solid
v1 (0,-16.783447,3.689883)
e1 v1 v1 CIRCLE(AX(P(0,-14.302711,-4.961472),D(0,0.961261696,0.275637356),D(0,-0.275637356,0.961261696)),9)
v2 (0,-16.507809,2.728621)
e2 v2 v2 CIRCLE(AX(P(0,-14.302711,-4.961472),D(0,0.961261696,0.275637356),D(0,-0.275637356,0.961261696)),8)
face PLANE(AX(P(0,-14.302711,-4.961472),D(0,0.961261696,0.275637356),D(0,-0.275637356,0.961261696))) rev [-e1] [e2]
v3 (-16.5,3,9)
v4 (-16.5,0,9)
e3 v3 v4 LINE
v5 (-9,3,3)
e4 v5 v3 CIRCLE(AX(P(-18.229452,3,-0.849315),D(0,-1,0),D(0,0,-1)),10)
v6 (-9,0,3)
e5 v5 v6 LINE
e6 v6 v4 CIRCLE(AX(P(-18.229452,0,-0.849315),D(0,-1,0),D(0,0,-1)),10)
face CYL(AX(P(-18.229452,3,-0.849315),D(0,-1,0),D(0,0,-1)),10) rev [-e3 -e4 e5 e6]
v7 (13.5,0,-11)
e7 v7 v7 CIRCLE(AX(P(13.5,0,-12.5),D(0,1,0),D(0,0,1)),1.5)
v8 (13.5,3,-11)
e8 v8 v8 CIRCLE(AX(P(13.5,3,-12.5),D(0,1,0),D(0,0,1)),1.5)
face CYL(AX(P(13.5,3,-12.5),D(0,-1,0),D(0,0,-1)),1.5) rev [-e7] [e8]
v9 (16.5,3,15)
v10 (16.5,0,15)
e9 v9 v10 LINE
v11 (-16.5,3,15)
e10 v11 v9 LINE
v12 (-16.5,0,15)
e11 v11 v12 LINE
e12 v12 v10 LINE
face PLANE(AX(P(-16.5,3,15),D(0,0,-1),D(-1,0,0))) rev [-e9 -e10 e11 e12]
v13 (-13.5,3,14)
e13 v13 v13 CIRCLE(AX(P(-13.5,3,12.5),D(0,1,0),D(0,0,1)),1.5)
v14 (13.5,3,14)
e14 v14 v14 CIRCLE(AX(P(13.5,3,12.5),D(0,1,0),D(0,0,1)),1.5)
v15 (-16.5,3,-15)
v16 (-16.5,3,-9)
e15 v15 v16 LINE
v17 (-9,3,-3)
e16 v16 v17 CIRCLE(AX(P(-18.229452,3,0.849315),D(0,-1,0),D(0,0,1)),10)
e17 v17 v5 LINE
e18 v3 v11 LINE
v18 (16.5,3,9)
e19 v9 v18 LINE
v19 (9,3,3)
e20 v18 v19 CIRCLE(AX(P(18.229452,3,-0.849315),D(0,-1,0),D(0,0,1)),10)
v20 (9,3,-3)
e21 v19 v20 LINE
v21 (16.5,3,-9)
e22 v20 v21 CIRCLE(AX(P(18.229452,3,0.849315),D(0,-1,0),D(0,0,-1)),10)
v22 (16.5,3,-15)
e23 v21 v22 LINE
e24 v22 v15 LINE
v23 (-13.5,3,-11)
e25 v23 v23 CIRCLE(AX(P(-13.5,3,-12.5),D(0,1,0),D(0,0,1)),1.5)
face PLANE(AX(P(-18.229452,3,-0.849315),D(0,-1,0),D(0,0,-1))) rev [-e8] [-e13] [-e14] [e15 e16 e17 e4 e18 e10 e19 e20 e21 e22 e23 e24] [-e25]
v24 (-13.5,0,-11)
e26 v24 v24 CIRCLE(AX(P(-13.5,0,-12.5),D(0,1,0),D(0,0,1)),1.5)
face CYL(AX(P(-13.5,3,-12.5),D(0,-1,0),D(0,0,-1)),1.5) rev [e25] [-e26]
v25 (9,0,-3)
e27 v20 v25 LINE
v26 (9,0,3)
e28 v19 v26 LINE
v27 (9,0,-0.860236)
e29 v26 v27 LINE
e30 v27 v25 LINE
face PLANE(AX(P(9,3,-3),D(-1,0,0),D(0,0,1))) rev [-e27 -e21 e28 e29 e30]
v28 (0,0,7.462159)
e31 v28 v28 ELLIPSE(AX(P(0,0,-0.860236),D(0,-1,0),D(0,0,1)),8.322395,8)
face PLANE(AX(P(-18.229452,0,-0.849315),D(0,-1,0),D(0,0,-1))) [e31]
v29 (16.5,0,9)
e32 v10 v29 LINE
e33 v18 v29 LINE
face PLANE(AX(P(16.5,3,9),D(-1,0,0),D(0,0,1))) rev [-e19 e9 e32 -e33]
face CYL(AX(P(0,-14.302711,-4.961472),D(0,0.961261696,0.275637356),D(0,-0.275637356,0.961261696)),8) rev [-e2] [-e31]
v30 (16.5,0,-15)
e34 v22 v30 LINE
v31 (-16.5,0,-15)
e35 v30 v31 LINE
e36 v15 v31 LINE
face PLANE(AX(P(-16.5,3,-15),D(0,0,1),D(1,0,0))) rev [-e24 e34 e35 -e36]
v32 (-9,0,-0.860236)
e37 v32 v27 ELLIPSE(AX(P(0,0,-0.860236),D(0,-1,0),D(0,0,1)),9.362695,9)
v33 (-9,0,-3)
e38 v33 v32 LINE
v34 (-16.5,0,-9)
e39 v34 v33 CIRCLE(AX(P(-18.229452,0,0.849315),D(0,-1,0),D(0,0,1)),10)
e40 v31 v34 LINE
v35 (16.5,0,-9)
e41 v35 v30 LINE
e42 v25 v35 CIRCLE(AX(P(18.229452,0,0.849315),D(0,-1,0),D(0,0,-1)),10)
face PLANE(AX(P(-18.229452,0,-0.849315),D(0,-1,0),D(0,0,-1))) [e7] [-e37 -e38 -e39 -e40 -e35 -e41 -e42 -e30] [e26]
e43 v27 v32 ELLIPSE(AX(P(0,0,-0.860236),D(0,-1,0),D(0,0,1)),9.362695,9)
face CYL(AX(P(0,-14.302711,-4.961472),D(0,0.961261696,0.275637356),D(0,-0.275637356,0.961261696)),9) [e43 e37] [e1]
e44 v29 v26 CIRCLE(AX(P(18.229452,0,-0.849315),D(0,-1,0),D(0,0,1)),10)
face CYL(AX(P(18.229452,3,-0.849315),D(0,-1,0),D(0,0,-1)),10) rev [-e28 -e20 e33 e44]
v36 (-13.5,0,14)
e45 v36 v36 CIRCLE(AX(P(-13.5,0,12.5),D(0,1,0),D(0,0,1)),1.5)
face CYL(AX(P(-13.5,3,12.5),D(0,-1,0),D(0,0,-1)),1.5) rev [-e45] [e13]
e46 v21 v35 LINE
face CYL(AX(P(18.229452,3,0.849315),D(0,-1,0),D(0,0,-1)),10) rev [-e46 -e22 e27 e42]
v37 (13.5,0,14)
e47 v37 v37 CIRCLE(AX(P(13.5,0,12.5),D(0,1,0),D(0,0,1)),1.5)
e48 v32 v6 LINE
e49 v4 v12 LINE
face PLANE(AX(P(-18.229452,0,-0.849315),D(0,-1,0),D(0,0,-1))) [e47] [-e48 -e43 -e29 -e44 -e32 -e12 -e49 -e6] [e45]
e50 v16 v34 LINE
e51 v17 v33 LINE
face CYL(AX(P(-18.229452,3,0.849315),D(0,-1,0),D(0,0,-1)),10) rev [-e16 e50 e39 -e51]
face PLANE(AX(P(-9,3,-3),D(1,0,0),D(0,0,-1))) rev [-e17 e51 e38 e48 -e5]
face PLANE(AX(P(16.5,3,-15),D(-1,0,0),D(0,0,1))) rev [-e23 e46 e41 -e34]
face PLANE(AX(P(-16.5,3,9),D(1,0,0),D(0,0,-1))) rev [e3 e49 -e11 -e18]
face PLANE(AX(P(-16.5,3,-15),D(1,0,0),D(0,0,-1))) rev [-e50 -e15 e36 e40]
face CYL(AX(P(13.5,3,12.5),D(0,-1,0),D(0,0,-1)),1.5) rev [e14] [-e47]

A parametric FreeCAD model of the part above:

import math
import FreeCAD as App
import Part
import Sketcher


def add_polygon(sketch, points):
    """Adds a closed chain of lines whose ends are joined by coincident constraints."""
    first, n = sketch.GeometryCount, len(points)
    for a, b in zip(points, points[1:] + points[:1]):
        sketch.addGeometry(Part.LineSegment(App.Vector(*a, 0), App.Vector(*b, 0)), False)
    for i in range(n):
        sketch.addConstraint(Sketcher.Constraint("Coincident", first + i, 2, first + (i + 1) % n, 1))

doc = App.newDocument("Part")
body = doc.addObject("PartDesign::Body", "Body")

sketch1 = body.newObject("Sketcher::SketchObject", "Sketch")
sketch1.AttachmentSupport = (doc.getObject("XZ_Plane"), [""])
sketch1.MapMode = "FlatFace"
sketch1.addGeometry(Part.LineSegment(App.Vector(16.5, -15, 0), App.Vector(-16.5, -15, 0)), False)
sketch1.addGeometry(Part.LineSegment(App.Vector(-16.5, -15, 0), App.Vector(-16.5, -9, 0)), False)
sketch1.addGeometry(Part.ArcOfCircle(Part.Circle(App.Vector(-18.2, 0.8, 0), App.Vector(0, 0, 1), 10), math.radians(-80), math.radians(-23)), False)
sketch1.addGeometry(Part.LineSegment(App.Vector(-9, -3, 0), App.Vector(-9, 3, 0)), False)
sketch1.addGeometry(Part.ArcOfCircle(Part.Circle(App.Vector(-18.2, -0.8, 0), App.Vector(0, 0, 1), 10), math.radians(23), math.radians(80)), False)
sketch1.addGeometry(Part.LineSegment(App.Vector(-16.5, 9, 0), App.Vector(-16.5, 15, 0)), False)
sketch1.addGeometry(Part.LineSegment(App.Vector(-16.5, 15, 0), App.Vector(16.5, 15, 0)), False)
sketch1.addGeometry(Part.LineSegment(App.Vector(16.5, 15, 0), App.Vector(16.5, 9, 0)), False)
sketch1.addGeometry(Part.ArcOfCircle(Part.Circle(App.Vector(18.2, -0.8, 0), App.Vector(0, 0, 1), 10), math.radians(100), math.radians(157)), False)
sketch1.addGeometry(Part.LineSegment(App.Vector(9, 3, 0), App.Vector(9, -3, 0)), False)
sketch1.addGeometry(Part.ArcOfCircle(Part.Circle(App.Vector(18.2, 0.8, 0), App.Vector(0, 0, 1), 10), math.radians(-157), math.radians(-100)), False)
sketch1.addGeometry(Part.LineSegment(App.Vector(16.5, -9, 0), App.Vector(16.5, -15, 0)), False)
sketch1.addGeometry(Part.Circle(App.Vector(13.5, 12.5, 0), App.Vector(0, 0, 1), 1.5), False)
sketch1.addGeometry(Part.Circle(App.Vector(-13.5, 12.5, 0), App.Vector(0, 0, 1), 1.5), False)
sketch1.addGeometry(Part.Circle(App.Vector(13.5, -12.5, 0), App.Vector(0, 0, 1), 1.5), False)
sketch1.addGeometry(Part.Circle(App.Vector(-13.5, -12.5, 0), App.Vector(0, 0, 1), 1.5), False)
sketch1.addConstraint(Sketcher.Constraint("Coincident", 0, 2, 1, 1))
sketch1.addConstraint(Sketcher.Constraint("Coincident", 1, 2, 2, 1))
sketch1.addConstraint(Sketcher.Constraint("Coincident", 2, 2, 3, 1))
sketch1.addConstraint(Sketcher.Constraint("Coincident", 3, 2, 4, 1))
sketch1.addConstraint(Sketcher.Constraint("Coincident", 4, 2, 5, 1))
sketch1.addConstraint(Sketcher.Constraint("Coincident", 5, 2, 6, 1))
sketch1.addConstraint(Sketcher.Constraint("Coincident", 6, 2, 7, 1))
sketch1.addConstraint(Sketcher.Constraint("Coincident", 7, 2, 8, 1))
sketch1.addConstraint(Sketcher.Constraint("Coincident", 8, 2, 9, 1))
sketch1.addConstraint(Sketcher.Constraint("Coincident", 9, 2, 10, 1))
sketch1.addConstraint(Sketcher.Constraint("Coincident", 10, 2, 11, 1))
sketch1.addConstraint(Sketcher.Constraint("Coincident", 11, 2, 0, 1))
sketch1.addConstraint(Sketcher.Constraint("Horizontal", 0))
sketch1.addConstraint(Sketcher.Constraint("Vertical", 1))
sketch1.addConstraint(Sketcher.Constraint("Vertical", 3))
sketch1.addConstraint(Sketcher.Constraint("Vertical", 5))
sketch1.addConstraint(Sketcher.Constraint("Horizontal", 6))
sketch1.addConstraint(Sketcher.Constraint("Vertical", 7))
sketch1.addConstraint(Sketcher.Constraint("Vertical", 9))
sketch1.addConstraint(Sketcher.Constraint("Vertical", 11))
sketch1.addConstraint(Sketcher.Constraint("Equal", 2, 4))
sketch1.addConstraint(Sketcher.Constraint("Equal", 4, 8))
sketch1.addConstraint(Sketcher.Constraint("Equal", 8, 10))
sketch1.addConstraint(Sketcher.Constraint("Equal", 12, 13))
sketch1.addConstraint(Sketcher.Constraint("Equal", 13, 14))
sketch1.addConstraint(Sketcher.Constraint("Equal", 14, 15))
sketch1.addConstraint(Sketcher.Constraint("Symmetric", 2, 3, 8, 3, -1, 1))
sketch1.addConstraint(Sketcher.Constraint("Symmetric", 4, 3, 10, 3, -1, 1))
sketch1.addConstraint(Sketcher.Constraint("Symmetric", 13, 3, 14, 3, -1, 1))
sketch1.addConstraint(Sketcher.Constraint("Symmetric", 12, 3, 15, 3, -1, 1))
sketch1.addConstraint(Sketcher.Constraint("Symmetric", 0, 2, 6, 2, -1, 1))
sketch1.addConstraint(Sketcher.Constraint("Symmetric", 4, 3, 8, 3, -2))
sketch1.addConstraint(Sketcher.Constraint("Symmetric", 12, 3, 13, 3, -2))
sketch1.addConstraint(Sketcher.Constraint("Horizontal", 4, 2, 7, 2))
sketch1.addConstraint(Sketcher.Constraint("Horizontal", 3, 2, 8, 2))
sketch1.addConstraint(Sketcher.Constraint("Horizontal", 1, 2, 10, 2))
sketch1.addConstraint(Sketcher.Constraint("Equal", 1, 3))
sketch1.addConstraint(Sketcher.Constraint("Diameter", 12, 3.0))
sketch1.addConstraint(Sketcher.Constraint("Radius", 2, 10.0))
sketch1.addConstraint(Sketcher.Constraint("DistanceX", 0, 2, 0, 1, 33.0))
sketch1.addConstraint(Sketcher.Constraint("DistanceY", 1, 1, 1, 2, 6.0))
sketch1.addConstraint(Sketcher.Constraint("DistanceY", 0, 2, -1, 1, 15.0))
sketch1.addConstraint(Sketcher.Constraint("DistanceX", 2, 2, -1, 1, 9.0))
sketch1.addConstraint(Sketcher.Constraint("DistanceX", 13, 3, 12, 3, 27.0))
sketch1.addConstraint(Sketcher.Constraint("DistanceY", 14, 3, 12, 3, 25.0))
pad1 = body.newObject("PartDesign::Pad", "Pad")
pad1.Profile = sketch1
pad1.Length = 3
pad1.Reversed = True

sketch2 = body.newObject("Sketcher::SketchObject", "Sketch001")
sketch2.Placement = App.Placement(App.Vector(0, 2.772072, 0.794879), App.Rotation(App.Vector(1, 0, 0), App.Vector(0, 0.275637356, -0.961261696), App.Vector(0, 0.961261696, 0.275637356), "ZXY"))
sketch2.addGeometry(Part.Circle(App.Vector(0, 1, 0), App.Vector(0, 0, 1), 9), False)
sketch2.addGeometry(Part.Circle(App.Vector(0, 1, 0), App.Vector(0, 0, 1), 8), False)
sketch2.addConstraint(Sketcher.Constraint("Coincident", 1, 3, 0, 3))
sketch2.addConstraint(Sketcher.Constraint("PointOnObject", 0, 3, -2))
sketch2.addConstraint(Sketcher.Constraint("Diameter", 0, 18.0))
sketch2.addConstraint(Sketcher.Constraint("Diameter", 1, 16.0))
sketch2.addConstraint(Sketcher.Constraint("DistanceY", -1, 1, 0, 3, 0.826912))
pad2 = body.newObject("PartDesign::Pad", "Pad001")
pad2.Profile = sketch2
pad2.Length = 18
pad2.Reversed = True

sketch3 = body.newObject("Sketcher::SketchObject", "Sketch002")
sketch3.AttachmentSupport = (doc.getObject("XY_Plane"), [""])
sketch3.MapMode = "FlatFace"
sketch3.AttachmentOffset = App.Placement(App.Vector(0, 0, 15), App.Rotation())
add_polygon(sketch3, [(-9, 5.5), (-9, 3), (9, 3), (9, 5.5)])
sketch3.addConstraint(Sketcher.Constraint("Vertical", 0))
sketch3.addConstraint(Sketcher.Constraint("Horizontal", 1))
sketch3.addConstraint(Sketcher.Constraint("Vertical", 2))
sketch3.addConstraint(Sketcher.Constraint("Horizontal", 3))
sketch3.addConstraint(Sketcher.Constraint("DistanceX", 1, 1, 1, 2, 18.0))
sketch3.addConstraint(Sketcher.Constraint("DistanceX", 0, 2, -1, 1, 9.0))
sketch3.addConstraint(Sketcher.Constraint("DistanceY", -1, 1, 0, 2, 3.0))
sketch3.addConstraint(Sketcher.Constraint("DistanceY", 0, 2, 0, 1, 2.480736))
pocket1 = body.newObject("PartDesign::Pocket", "Pocket")
pocket1.Profile = sketch3
pocket1.Length = 30

doc.recompute()
